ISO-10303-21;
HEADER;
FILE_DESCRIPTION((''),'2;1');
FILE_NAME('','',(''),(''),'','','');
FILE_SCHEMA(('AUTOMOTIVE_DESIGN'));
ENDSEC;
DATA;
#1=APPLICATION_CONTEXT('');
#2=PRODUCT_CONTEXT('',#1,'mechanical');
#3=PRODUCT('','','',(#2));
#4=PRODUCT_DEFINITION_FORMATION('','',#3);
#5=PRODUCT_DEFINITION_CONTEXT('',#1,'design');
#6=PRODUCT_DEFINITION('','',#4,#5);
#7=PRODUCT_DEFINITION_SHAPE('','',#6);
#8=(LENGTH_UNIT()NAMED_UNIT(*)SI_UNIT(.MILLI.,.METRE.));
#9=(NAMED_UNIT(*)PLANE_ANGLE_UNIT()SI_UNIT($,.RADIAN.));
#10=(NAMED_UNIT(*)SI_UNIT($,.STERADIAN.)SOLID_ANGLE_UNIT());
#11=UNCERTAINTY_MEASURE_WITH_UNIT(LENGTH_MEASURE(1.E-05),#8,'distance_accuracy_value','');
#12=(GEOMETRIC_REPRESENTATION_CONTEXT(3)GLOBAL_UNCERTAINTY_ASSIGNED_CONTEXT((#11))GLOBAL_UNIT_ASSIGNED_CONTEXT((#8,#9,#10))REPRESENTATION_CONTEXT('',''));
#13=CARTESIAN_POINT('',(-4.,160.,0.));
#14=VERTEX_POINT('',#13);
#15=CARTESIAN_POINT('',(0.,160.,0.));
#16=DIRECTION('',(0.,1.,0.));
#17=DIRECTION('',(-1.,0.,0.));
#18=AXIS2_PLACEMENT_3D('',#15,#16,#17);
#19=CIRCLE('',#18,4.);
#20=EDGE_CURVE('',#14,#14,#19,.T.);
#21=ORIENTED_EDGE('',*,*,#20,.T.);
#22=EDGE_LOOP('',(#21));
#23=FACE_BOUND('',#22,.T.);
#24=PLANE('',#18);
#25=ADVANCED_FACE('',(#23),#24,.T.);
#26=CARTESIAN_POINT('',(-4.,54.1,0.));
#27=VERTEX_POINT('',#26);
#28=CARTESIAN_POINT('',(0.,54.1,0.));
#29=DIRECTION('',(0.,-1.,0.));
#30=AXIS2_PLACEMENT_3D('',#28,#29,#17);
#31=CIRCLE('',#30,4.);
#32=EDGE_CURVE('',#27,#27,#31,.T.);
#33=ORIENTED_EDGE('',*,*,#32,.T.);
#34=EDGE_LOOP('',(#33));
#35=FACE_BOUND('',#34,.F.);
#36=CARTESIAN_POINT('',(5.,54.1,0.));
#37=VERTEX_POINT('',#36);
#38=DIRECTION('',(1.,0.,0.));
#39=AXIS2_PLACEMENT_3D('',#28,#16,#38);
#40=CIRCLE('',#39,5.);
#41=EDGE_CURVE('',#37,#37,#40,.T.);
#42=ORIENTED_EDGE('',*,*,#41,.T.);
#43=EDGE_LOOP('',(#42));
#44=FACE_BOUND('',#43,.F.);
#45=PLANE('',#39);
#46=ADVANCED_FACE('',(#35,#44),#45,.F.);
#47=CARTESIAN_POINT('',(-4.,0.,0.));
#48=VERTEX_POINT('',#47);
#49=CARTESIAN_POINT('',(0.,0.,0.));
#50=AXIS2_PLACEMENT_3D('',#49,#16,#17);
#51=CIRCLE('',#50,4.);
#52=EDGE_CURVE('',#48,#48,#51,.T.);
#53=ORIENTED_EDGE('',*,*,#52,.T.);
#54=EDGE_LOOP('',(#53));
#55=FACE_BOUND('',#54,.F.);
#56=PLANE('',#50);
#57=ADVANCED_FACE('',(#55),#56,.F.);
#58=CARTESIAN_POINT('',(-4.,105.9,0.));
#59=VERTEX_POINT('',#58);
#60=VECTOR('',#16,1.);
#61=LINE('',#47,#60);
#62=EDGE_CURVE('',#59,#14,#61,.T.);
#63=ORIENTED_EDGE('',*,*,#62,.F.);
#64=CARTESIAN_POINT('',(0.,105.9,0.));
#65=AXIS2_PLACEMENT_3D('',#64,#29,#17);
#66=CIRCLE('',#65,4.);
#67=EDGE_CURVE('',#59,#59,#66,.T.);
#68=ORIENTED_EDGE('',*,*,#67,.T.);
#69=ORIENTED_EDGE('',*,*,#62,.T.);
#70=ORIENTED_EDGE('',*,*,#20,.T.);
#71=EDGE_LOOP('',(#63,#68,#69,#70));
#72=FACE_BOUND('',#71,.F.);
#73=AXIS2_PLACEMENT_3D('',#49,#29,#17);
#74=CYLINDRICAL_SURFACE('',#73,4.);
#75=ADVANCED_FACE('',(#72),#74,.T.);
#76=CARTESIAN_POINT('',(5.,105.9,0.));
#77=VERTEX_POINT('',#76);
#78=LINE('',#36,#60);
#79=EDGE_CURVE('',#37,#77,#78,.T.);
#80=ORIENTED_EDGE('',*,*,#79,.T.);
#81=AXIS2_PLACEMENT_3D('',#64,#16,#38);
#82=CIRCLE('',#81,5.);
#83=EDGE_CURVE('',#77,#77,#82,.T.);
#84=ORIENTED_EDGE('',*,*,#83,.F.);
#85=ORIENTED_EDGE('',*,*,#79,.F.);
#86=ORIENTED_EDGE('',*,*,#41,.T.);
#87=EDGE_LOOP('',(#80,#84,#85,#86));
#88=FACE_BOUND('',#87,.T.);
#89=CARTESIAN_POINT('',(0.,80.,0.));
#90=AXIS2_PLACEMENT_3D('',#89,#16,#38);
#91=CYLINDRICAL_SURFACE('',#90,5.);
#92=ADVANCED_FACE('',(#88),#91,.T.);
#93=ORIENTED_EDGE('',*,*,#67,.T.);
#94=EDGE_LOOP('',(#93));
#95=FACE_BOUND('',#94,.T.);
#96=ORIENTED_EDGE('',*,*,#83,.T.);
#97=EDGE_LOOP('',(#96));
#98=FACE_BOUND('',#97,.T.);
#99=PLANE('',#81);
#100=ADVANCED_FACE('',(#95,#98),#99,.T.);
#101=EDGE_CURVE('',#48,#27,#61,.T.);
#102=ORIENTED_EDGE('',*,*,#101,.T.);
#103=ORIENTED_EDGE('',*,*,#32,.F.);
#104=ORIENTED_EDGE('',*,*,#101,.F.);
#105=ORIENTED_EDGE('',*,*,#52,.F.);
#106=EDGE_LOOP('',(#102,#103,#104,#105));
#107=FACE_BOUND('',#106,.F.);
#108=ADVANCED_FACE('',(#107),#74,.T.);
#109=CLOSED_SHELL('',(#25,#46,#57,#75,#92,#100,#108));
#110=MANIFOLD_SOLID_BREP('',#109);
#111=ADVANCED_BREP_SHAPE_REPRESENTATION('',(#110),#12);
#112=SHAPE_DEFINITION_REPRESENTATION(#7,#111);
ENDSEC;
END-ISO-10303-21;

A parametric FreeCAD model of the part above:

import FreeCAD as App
import Part
import Sketcher
from FreeCAD import Vector

doc = App.newDocument("Part")
body = doc.addObject("PartDesign::Body", "Body")

sketch1 = doc.addObject("Sketcher::SketchObject", "Sketch")
body.addObject(sketch1)
sketch1.AttachmentSupport = (doc.XZ_Plane, [""])
sketch1.MapMode = "FlatFace"
sketch1.addGeometry(Part.Circle(Vector(0, 0, 0), Vector(0, 0, 1), 4), False)
sketch1.addConstraint([
    Sketcher.Constraint("Coincident", 0, 3, -1, 1),
    Sketcher.Constraint("Diameter", 0, 8.0),
])
pad1 = doc.addObject("PartDesign::Pad", "Pad")
body.addObject(pad1)
pad1.Profile = sketch1
pad1.Length = 160
pad1.Reversed = True

sketch2 = doc.addObject("Sketcher::SketchObject", "Sketch001")
body.addObject(sketch2)
sketch2.AttachmentSupport = (doc.XZ_Plane, [""])
sketch2.MapMode = "FlatFace"
sketch2.AttachmentOffset = App.Placement(Vector(0, 0, -80), App.Rotation())
sketch2.addGeometry(Part.Circle(Vector(0, 0, 0), Vector(0, 0, 1), 5), False)
sketch2.addConstraint([
    Sketcher.Constraint("Coincident", 0, 3, -1, 1),
    Sketcher.Constraint("Diameter", 0, 10.0),
])
pad2 = doc.addObject("PartDesign::Pad", "Pad001")
body.addObject(pad2)
pad2.Profile = sketch2
pad2.Type = "TwoLengths"
pad2.Length = 25.9
pad2.Length2 = 25.9
pad2.Reversed = True

doc.recompute()
